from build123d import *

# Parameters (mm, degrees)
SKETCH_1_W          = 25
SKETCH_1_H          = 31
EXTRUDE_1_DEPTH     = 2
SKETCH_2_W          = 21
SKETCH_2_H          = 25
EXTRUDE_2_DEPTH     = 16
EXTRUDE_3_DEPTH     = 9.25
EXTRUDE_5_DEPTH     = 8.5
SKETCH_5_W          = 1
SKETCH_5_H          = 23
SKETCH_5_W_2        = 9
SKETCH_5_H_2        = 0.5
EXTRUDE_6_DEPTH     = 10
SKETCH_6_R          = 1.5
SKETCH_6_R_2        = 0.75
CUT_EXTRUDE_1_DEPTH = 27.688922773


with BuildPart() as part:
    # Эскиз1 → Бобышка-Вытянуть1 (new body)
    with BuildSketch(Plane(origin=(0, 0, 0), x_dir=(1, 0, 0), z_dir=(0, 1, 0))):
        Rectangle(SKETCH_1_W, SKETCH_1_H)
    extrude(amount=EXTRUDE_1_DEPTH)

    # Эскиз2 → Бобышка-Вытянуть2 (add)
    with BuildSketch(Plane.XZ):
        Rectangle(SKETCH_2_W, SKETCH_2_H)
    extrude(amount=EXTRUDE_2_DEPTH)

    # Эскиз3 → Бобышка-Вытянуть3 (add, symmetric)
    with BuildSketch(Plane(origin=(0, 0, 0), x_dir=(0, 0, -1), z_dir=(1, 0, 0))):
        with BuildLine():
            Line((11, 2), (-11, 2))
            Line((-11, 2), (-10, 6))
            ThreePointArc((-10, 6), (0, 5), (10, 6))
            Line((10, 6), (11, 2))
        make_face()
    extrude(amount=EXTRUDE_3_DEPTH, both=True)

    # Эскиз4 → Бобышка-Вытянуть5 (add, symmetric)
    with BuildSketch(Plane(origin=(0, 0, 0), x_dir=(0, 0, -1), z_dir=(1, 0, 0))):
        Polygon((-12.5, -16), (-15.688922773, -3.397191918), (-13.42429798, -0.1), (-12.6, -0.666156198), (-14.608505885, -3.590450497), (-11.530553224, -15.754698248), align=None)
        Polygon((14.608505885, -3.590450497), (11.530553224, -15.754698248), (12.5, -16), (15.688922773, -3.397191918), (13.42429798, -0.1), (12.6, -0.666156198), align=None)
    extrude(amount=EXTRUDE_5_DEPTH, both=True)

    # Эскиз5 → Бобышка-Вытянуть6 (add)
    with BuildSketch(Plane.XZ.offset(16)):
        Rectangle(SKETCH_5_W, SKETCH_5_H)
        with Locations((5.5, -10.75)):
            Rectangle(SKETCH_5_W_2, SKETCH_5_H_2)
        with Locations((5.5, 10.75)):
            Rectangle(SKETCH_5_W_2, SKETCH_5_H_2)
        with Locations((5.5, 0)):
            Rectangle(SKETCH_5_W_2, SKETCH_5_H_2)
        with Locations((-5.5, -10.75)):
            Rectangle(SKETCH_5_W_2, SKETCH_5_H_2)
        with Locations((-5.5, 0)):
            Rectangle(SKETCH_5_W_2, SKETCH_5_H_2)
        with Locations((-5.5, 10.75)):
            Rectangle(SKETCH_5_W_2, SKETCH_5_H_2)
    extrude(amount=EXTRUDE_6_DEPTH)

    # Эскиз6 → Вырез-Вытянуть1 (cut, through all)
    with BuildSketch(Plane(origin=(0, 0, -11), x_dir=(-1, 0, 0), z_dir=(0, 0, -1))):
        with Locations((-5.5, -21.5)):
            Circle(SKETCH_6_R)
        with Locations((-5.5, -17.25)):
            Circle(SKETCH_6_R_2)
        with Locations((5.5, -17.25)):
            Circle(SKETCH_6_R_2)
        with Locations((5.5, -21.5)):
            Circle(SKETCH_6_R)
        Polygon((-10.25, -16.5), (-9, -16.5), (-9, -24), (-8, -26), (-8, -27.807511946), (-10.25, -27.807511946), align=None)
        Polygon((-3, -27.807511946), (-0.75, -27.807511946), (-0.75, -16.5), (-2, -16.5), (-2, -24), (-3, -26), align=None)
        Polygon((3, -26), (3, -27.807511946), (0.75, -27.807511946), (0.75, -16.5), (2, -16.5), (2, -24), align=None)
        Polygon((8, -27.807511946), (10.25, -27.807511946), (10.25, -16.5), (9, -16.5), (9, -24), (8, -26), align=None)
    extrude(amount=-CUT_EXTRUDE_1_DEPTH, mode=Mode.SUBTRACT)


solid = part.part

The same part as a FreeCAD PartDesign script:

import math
import FreeCAD as App
import Part
import Sketcher
from FreeCAD import Vector
Q = App.Units.Quantity


def add_polygon(sketch, points):
    """Adds a closed chain of lines whose ends are joined by coincident constraints."""
    first, n = sketch.GeometryCount, len(points)
    for a, b in zip(points, points[1:] + points[:1]):
        sketch.addGeometry(Part.LineSegment(App.Vector(*a, 0), App.Vector(*b, 0)), False)
    for i in range(n):
        sketch.addConstraint(Sketcher.Constraint("Coincident", first + i, 2, first + (i + 1) % n, 1))

doc = App.newDocument("Part")
body = doc.addObject("PartDesign::Body", "Body")

# Sketch on XZ plane
sketch1 = body.newObject("Sketcher::SketchObject", "Sketch")
sketch1.AttachmentSupport = (doc.getObject("XZ_Plane"), [""])
sketch1.MapMode = "FlatFace"
add_polygon(sketch1, [(-12, -16), (-12, 16), (12, 16), (12, -16)])  # lines 0-3
sketch1.addConstraint([
    Sketcher.Constraint("Vertical", 0),
    Sketcher.Constraint("Horizontal", 1),
    Sketcher.Constraint("Vertical", 2),
    Sketcher.Constraint("Horizontal", 3),
    Sketcher.Constraint("Symmetric", 0, 2, 2, 2, -1, 1),
    Sketcher.Constraint("DistanceX", 1, 1, 1, 2, Q("25 mm")),
    Sketcher.Constraint("DistanceY", 0, 1, 0, 2, Q("31 mm")),
])
pad1 = body.newObject("PartDesign::Pad", "Pad")
pad1.Profile = sketch1
pad1.Length = 2
pad1.Reversed = True

# Sketch on XZ plane
sketch2 = body.newObject("Sketcher::SketchObject", "Sketch001")
sketch2.AttachmentSupport = (doc.getObject("XZ_Plane"), [""])
sketch2.MapMode = "FlatFace"
add_polygon(sketch2, [(-10, 12), (-10, -12), (10, -12), (10, 12)])  # lines 0-3
sketch2.addConstraint([
    Sketcher.Constraint("Vertical", 0),
    Sketcher.Constraint("Horizontal", 1),
    Sketcher.Constraint("Vertical", 2),
    Sketcher.Constraint("Horizontal", 3),
    Sketcher.Constraint("Symmetric", 0, 2, 2, 2, -1, 1),
    Sketcher.Constraint("DistanceX", 1, 1, 1, 2, Q("21 mm")),
    Sketcher.Constraint("DistanceY", 0, 2, 0, 1, Q("25 mm")),
])
pad2 = body.newObject("PartDesign::Pad", "Pad001")
pad2.Profile = sketch2
pad2.Length = 16

# Sketch on YZ plane
sketch3 = body.newObject("Sketcher::SketchObject", "Sketch002")
sketch3.AttachmentSupport = (doc.getObject("YZ_Plane"), [""])
sketch3.MapMode = "FlatFace"
sketch3.addGeometry([
    Part.LineSegment(Vector(2, 11, 0), Vector(2, -11, 0)),
    Part.LineSegment(Vector(2, -11, 0), Vector(6, -10, 0)),
    Part.ArcOfCircle(Part.Circle(Vector(55.5, 0, 0), Vector(0, 0, 1), 50.5), math.radians(169), math.radians(191)),
    Part.LineSegment(Vector(6, 10, 0), Vector(2, 11, 0)),
], False)
sketch3.addConstraint([
    Sketcher.Constraint("Coincident", 0, 2, 1, 1),
    Sketcher.Constraint("Coincident", 1, 2, 2, 2),
    Sketcher.Constraint("Coincident", 2, 1, 3, 1),
    Sketcher.Constraint("Coincident", 3, 2, 0, 1),
    Sketcher.Constraint("Vertical", 0),
    Sketcher.Constraint("Symmetric", 1, 2, 2, 1, -1),
    Sketcher.Constraint("Equal", 1, 3),
    Sketcher.Constraint("Radius", 2, Q("50.5 mm")),
    Sketcher.Constraint("DistanceY", 0, 2, 0, 1, Q("22 mm")),
    Sketcher.Constraint("DistanceX", -1, 1, 0, 2, Q("2 mm")),
    Sketcher.Constraint("DistanceX", -1, 1, 1, 2, Q("6 mm")),
    Sketcher.Constraint("DistanceY", 1, 2, -1, 1, Q("10 mm")),
])
pad3 = body.newObject("PartDesign::Pad", "Pad002")
pad3.Profile = sketch3
pad3.Length = 18.5
pad3.Midplane = True

# Sketch on YZ plane
sketch4 = body.newObject("Sketcher::SketchObject", "Sketch003")
sketch4.AttachmentSupport = (doc.getObject("YZ_Plane"), [""])
sketch4.MapMode = "FlatFace"
add_polygon(sketch4, [(-3.4, 15.7), (-16, 12.5), (-15.8, 11.5), (-3.6, 14.6), (-0.7, 12.6), (-0.1, 13.4)])  # lines 0-5
add_polygon(sketch4, [(-3.6, -14.6), (-15.8, -11.5), (-16, -12.5), (-3.4, -15.7), (-0.1, -13.4), (-0.7, -12.6)])  # lines 6-11
sketch4.addConstraint([
    Sketcher.Constraint("Symmetric", 1, 2, 6, 2, -1),
    Sketcher.Constraint("Symmetric", 0, 2, 7, 2, -1),
    Sketcher.Constraint("Symmetric", 5, 2, 8, 2, -1),
    Sketcher.Constraint("Symmetric", 4, 2, 9, 2, -1),
    Sketcher.Constraint("Symmetric", 3, 2, 10, 2, -1),
    Sketcher.Constraint("Symmetric", 2, 2, 11, 2, -1),
    Sketcher.Constraint("Perpendicular", 0, 1),
    Sketcher.Constraint("Perpendicular", 1, 2),
    Sketcher.Constraint("Perpendicular", 3, 4),
    Sketcher.Constraint("Perpendicular", 4, 5),
    Sketcher.Constraint("Equal", 1, 4),
    Sketcher.Constraint("Distance", 0, Q("13 mm")),
    Sketcher.Constraint("Distance", 1, Q("1 mm")),
    Sketcher.Constraint("Distance", 5, Q("4 mm")),
    Sketcher.Constraint("DistanceX", 0, 2, -1, 1, Q("16 mm")),
    Sketcher.Constraint("DistanceY", 7, 2, 0, 2, Q("25 mm")),
    Sketcher.Constraint("DistanceY", -1, 1, 3, 2, Q("12.6 mm")),
    Sketcher.Constraint("DistanceX", 4, 2, -1, 1, Q("0.1 mm")),
])
pad4 = body.newObject("PartDesign::Pad", "Pad003")
pad4.Profile = sketch4
pad4.Length = 17
pad4.Midplane = True

# Sketch on XZ plane
sketch5 = body.newObject("Sketcher::SketchObject", "Sketch004")
sketch5.AttachmentSupport = (doc.getObject("XZ_Plane"), [""])
sketch5.MapMode = "FlatFace"
sketch5.AttachmentOffset = App.Placement(Vector(0, 0, 16), App.Rotation())
add_polygon(sketch5, [(-0.5, 11.5), (-0.5, -11.5), (0.5, -11.5), (0.5, 11.5)])  # lines 0-3
add_polygon(sketch5, [(1, -10.5), (1, -11), (10, -11), (10, -10.5)])  # lines 4-7
add_polygon(sketch5, [(1, 11), (1, 10.5), (10, 10.5), (10, 11)])  # lines 8-11
add_polygon(sketch5, [(1, 0.2), (1, -0.2), (10, -0.2), (10, 0.2)])  # lines 12-15
add_polygon(sketch5, [(-10, -10.5), (-10, -11), (-1, -11), (-1, -10.5)])  # lines 16-19
add_polygon(sketch5, [(-10, 0.2), (-10, -0.2), (-1, -0.2), (-1, 0.2)])  # lines 20-23
add_polygon(sketch5, [(-10, 11), (-10, 10.5), (-1, 10.5), (-1, 11)])  # lines 24-27
sketch5.addConstraint([
    Sketcher.Constraint("Vertical", 0),
    Sketcher.Constraint("Horizontal", 1),
    Sketcher.Constraint("Vertical", 2),
    Sketcher.Constraint("Horizontal", 3),
    Sketcher.Constraint("Vertical", 4),
    Sketcher.Constraint("Horizontal", 5),
    Sketcher.Constraint("Vertical", 6),
    Sketcher.Constraint("Horizontal", 7),
    Sketcher.Constraint("Vertical", 8),
    Sketcher.Constraint("Horizontal", 9),
    Sketcher.Constraint("Vertical", 10),
    Sketcher.Constraint("Horizontal", 11),
    Sketcher.Constraint("Vertical", 12),
    Sketcher.Constraint("Horizontal", 13),
    Sketcher.Constraint("Vertical", 14),
    Sketcher.Constraint("Horizontal", 15),
    Sketcher.Constraint("Vertical", 16),
    Sketcher.Constraint("Horizontal", 17),
    Sketcher.Constraint("Vertical", 18),
    Sketcher.Constraint("Horizontal", 19),
    Sketcher.Constraint("Vertical", 20),
    Sketcher.Constraint("Horizontal", 21),
    Sketcher.Constraint("Vertical", 22),
    Sketcher.Constraint("Horizontal", 23),
    Sketcher.Constraint("Vertical", 24),
    Sketcher.Constraint("Horizontal", 25),
    Sketcher.Constraint("Vertical", 26),
    Sketcher.Constraint("Horizontal", 27),
    Sketcher.Constraint("Symmetric", 0, 2, 2, 2, -1, 1),
    Sketcher.Constraint("Symmetric", 10, 2, 16, 2, -1, 1),
    Sketcher.Constraint("Symmetric", 8, 2, 18, 2, -1, 1),
    Sketcher.Constraint("Symmetric", 14, 2, 20, 2, -1, 1),
    Sketcher.Constraint("Symmetric", 12, 2, 22, 2, -1, 1),
    Sketcher.Constraint("Symmetric", 6, 2, 24, 2, -1, 1),
    Sketcher.Constraint("Symmetric", 4, 2, 26, 2, -1, 1),
    Sketcher.Constraint("Symmetric", 5, 2, 16, 2, -2),
    Sketcher.Constraint("Symmetric", 7, 2, 18, 2, -2),
    Sketcher.Constraint("Horizontal", 13, 2, 20, 2),
    Sketcher.Constraint("Vertical", 11, 2, 12, 2),
    Sketcher.Constraint("Vertical", 10, 2, 13, 2),
    Sketcher.Constraint("Equal", 10, 12),
    Sketcher.Constraint("DistanceX", 1, 1, 1, 2, Q("1 mm")),
    Sketcher.Constraint("DistanceX", 5, 1, 5, 2, Q("9 mm")),
    Sketcher.Constraint("DistanceY", 0, 2, 0, 1, Q("23 mm")),
    Sketcher.Constraint("DistanceY", 4, 2, 4, 1, Q("0.5 mm")),
    Sketcher.Constraint("DistanceX", -1, 1, 4, 2, Q("1 mm")),
    Sketcher.Constraint("DistanceY", 4, 2, -1, 1, Q("11 mm")),
])
pad5 = body.newObject("PartDesign::Pad", "Pad004")
pad5.Profile = sketch5
pad5.Length = 10

# Sketch on XY plane
sketch6 = body.newObject("Sketcher::SketchObject", "Sketch005")
sketch6.AttachmentSupport = (doc.getObject("XY_Plane"), [""])
sketch6.MapMode = "FlatFace"
sketch6.AttachmentOffset = App.Placement(Vector(0, 0, -11), App.Rotation())
sketch6.addGeometry(Part.Circle(Vector(5.5, -21.5, 0), Vector(0, 0, 1), 1.5), False)  # 0
sketch6.addGeometry(Part.Circle(Vector(5.5, -17.2, 0), Vector(0, 0, 1), 0.8), False)  # 1
sketch6.addGeometry(Part.Circle(Vector(-5.5, -17.2, 0), Vector(0, 0, 1), 0.8), False)  # 2
sketch6.addGeometry(Part.Circle(Vector(-5.5, -21.5, 0), Vector(0, 0, 1), 1.5), False)  # 3
add_polygon(sketch6, [(9, -16.5), (10.2, -16.5), (10.2, -27.8), (8, -27.8), (8, -26), (9, -24)])  # lines 4-9
add_polygon(sketch6, [(3, -27.8), (0.8, -27.8), (0.8, -16.5), (2, -16.5), (2, -24), (3, -26)])  # lines 10-15
add_polygon(sketch6, [(-3, -27.8), (-3, -26), (-2, -24), (-2, -16.5), (-0.8, -16.5), (-0.8, -27.8)])  # lines 16-21
add_polygon(sketch6, [(-8, -27.8), (-10.2, -27.8), (-10.2, -16.5), (-9, -16.5), (-9, -24), (-8, -26)])  # lines 22-27
sketch6.addConstraint([
    Sketcher.Constraint("Horizontal", 4),
    Sketcher.Constraint("Vertical", 5),
    Sketcher.Constraint("Horizontal", 6),
    Sketcher.Constraint("Vertical", 7),
    Sketcher.Constraint("Vertical", 9),
    Sketcher.Constraint("Horizontal", 10),
    Sketcher.Constraint("Vertical", 11),
    Sketcher.Constraint("Horizontal", 12),
    Sketcher.Constraint("Vertical", 13),
    Sketcher.Constraint("Vertical", 15),
    Sketcher.Constraint("Vertical", 16),
    Sketcher.Constraint("Vertical", 18),
    Sketcher.Constraint("Horizontal", 19),
    Sketcher.Constraint("Vertical", 20),
    Sketcher.Constraint("Horizontal", 21),
    Sketcher.Constraint("Horizontal", 22),
    Sketcher.Constraint("Vertical", 23),
    Sketcher.Constraint("Horizontal", 24),
    Sketcher.Constraint("Vertical", 25),
    Sketcher.Constraint("Vertical", 27),
    Sketcher.Constraint("Equal", 1, 2),
    Sketcher.Constraint("Equal", 0, 3),
    Sketcher.Constraint("Symmetric", 1, 3, 2, 3, -2),
    Sketcher.Constraint("Symmetric", 0, 3, 3, 3, -2),
    Sketcher.Constraint("Symmetric", 14, 2, 16, 2, -2),
    Sketcher.Constraint("Symmetric", 13, 2, 17, 2, -2),
    Sketcher.Constraint("Symmetric", 11, 2, 19, 2, -2),
    Sketcher.Constraint("Symmetric", 5, 2, 22, 2, -2),
    Sketcher.Constraint("Symmetric", 9, 2, 24, 2, -2),
    Sketcher.Constraint("Symmetric", 7, 2, 26, 2, -2),
    Sketcher.Constraint("Parallel", 8, 17),
    Sketcher.Constraint("Parallel", 14, 26),
    Sketcher.Constraint("Horizontal", 6, 2, 10, 2),
    Sketcher.Constraint("Horizontal", 9, 2, 11, 2),
    Sketcher.Constraint("Horizontal", 8, 2, 13, 2),
    Sketcher.Constraint("Horizontal", 7, 2, 14, 2),
    Sketcher.Constraint("Horizontal", 15, 2, 20, 2),
    Sketcher.Constraint("Vertical", 0, 3, 1, 3),
    Sketcher.Constraint("Equal", 6, 10),
    Sketcher.Constraint("Diameter", 0, Q("3 mm")),
    Sketcher.Constraint("Diameter", 1, Q("1.5 mm")),
    Sketcher.Constraint("DistanceY", 9, 1, 9, 2, Q("7.5 mm")),
    Sketcher.Constraint("DistanceX", -1, 1, 6, 2, Q("8 mm")),
    Sketcher.Constraint("DistanceY", 7, 2, -1, 1, Q("26 mm")),
    Sketcher.Constraint("DistanceX", -1, 1, 8, 2, Q("9 mm")),
    Sketcher.Constraint("DistanceY", 8, 2, -1, 1, Q("24 mm")),
    Sketcher.Constraint("DistanceX", -1, 1, 12, 2, Q("2 mm")),
    Sketcher.Constraint("DistanceX", 2, 3, 1, 3, Q("11 mm")),
    Sketcher.Constraint("DistanceY", 0, 3, 4, 2, Q("5 mm")),
    Sketcher.Constraint("DistanceX", 4, 1, 4, 2, Q("1.25 mm")),
    Sketcher.Constraint("DistanceY", 1, 3, -1, 1, Q("17.25 mm")),
    Sketcher.Constraint("DistanceY", 5, 2, 5, 1, Q("11.307512 mm")),
])
pocket1 = body.newObject("PartDesign::Pocket", "Pocket")
pocket1.Profile = sketch6
pocket1.Type = "ThroughAll"
pocket1.Reversed = True

doc.recompute()
